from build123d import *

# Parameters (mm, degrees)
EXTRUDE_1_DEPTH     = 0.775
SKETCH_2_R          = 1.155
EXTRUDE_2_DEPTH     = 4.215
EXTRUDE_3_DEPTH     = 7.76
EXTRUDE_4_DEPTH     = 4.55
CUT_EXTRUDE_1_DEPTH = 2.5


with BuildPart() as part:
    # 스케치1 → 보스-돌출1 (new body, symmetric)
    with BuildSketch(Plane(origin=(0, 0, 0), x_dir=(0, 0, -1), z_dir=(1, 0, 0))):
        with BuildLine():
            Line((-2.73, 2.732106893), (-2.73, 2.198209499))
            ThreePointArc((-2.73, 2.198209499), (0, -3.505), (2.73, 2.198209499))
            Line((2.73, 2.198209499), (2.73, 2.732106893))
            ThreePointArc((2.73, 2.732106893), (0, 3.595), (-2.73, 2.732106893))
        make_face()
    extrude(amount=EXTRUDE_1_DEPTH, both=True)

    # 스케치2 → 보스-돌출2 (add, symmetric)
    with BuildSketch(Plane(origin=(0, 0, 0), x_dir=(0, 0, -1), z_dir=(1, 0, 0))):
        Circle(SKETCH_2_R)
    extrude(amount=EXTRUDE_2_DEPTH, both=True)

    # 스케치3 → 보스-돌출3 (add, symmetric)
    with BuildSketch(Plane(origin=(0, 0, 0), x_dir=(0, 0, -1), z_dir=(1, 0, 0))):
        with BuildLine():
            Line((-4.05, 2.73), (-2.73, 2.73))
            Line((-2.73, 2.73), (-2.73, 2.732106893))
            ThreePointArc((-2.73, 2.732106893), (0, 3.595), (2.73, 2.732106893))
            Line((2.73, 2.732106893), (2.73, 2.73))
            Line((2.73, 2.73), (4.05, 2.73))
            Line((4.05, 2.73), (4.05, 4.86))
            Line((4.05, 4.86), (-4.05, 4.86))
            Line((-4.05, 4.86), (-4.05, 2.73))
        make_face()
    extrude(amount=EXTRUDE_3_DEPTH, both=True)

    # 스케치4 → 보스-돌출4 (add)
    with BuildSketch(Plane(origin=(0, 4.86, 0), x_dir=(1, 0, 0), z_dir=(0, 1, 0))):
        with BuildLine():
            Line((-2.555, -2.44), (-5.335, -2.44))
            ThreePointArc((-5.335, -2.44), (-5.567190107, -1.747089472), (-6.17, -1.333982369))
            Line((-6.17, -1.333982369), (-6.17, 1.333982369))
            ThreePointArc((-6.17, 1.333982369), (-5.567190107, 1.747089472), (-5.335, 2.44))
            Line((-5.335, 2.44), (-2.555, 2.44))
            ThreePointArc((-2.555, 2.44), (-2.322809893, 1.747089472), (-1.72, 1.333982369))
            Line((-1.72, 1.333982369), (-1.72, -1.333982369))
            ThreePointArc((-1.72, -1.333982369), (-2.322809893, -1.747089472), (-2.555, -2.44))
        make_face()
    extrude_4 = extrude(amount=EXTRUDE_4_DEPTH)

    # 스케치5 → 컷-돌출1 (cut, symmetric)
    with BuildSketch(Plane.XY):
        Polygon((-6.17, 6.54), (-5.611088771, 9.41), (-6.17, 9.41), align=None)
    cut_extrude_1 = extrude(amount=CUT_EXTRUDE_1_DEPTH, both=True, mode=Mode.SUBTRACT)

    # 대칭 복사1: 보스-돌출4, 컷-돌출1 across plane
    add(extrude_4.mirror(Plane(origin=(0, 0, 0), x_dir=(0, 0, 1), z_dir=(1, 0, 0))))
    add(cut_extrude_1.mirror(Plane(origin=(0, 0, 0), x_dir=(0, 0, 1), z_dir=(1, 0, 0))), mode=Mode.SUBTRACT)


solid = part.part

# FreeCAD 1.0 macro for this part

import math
import FreeCAD as App
import Part
import Sketcher
from FreeCAD import Vector
Q = App.Units.Quantity


def add_polygon(sketch, points):
    """Adds a closed chain of lines whose ends are joined by coincident constraints."""
    first, n = sketch.GeometryCount, len(points)
    for a, b in zip(points, points[1:] + points[:1]):
        sketch.addGeometry(Part.LineSegment(App.Vector(*a, 0), App.Vector(*b, 0)), False)
    for i in range(n):
        sketch.addConstraint(Sketcher.Constraint("Coincident", first + i, 2, first + (i + 1) % n, 1))

doc = App.newDocument("Part")
body = doc.addObject("PartDesign::Body", "Body")

# Sketch on YZ plane
sketch1 = body.newObject("Sketcher::SketchObject", "Sketch")
sketch1.AttachmentSupport = (doc.getObject("YZ_Plane"), [""])
sketch1.MapMode = "FlatFace"
sketch1.addGeometry(Part.LineSegment(Vector(2.732107, 2.73, 0), Vector(2.198209, 2.73, 0)), False)
sketch1.addGeometry(Part.ArcOfCircle(Part.Circle(Vector(0, 0, 0), Vector(0, 0, 1), 3.505), math.radians(51.158811), math.radians(308.841189)), False)
sketch1.addGeometry(Part.LineSegment(Vector(2.198209, -2.73, 0), Vector(2.732107, -2.73, 0)), False)
sketch1.addGeometry(Part.ArcOfCircle(Part.Circle(Vector(-1.155, 0, 0), Vector(0, 0, 1), 4.75), math.radians(-35.081205), math.radians(35.081205)), False)
sketch1.addConstraint(Sketcher.Constraint("Coincident", 0, 2, 1, 1))
sketch1.addConstraint(Sketcher.Constraint("Coincident", 1, 2, 2, 1))
sketch1.addConstraint(Sketcher.Constraint("Coincident", 2, 2, 3, 1))
sketch1.addConstraint(Sketcher.Constraint("Coincident", 3, 2, 0, 1))
sketch1.addConstraint(Sketcher.Constraint("Horizontal", 0))
sketch1.addConstraint(Sketcher.Constraint("Horizontal", 2))
sketch1.addConstraint(Sketcher.Constraint("Coincident", 1, 3, -1, 1))
sketch1.addConstraint(Sketcher.Constraint("Symmetric", 2, 2, 3, 2, -1))
sketch1.addConstraint(Sketcher.Constraint("Radius", 3, 4.75))
sketch1.addConstraint(Sketcher.Constraint("Radius", 1, 3.505))
sketch1.addConstraint(Sketcher.Constraint("DistanceY", -1, 1, 0, 2, 2.73))
sketch1.addConstraint(Sketcher.Constraint("DistanceX", 3, 3, -1, 1, 1.155))
pad1 = body.newObject("PartDesign::Pad", "Pad")
pad1.Profile = sketch1
pad1.Length = 1.55
pad1.Midplane = True

# Sketch on YZ plane
sketch2 = body.newObject("Sketcher::SketchObject", "Sketch001")
sketch2.AttachmentSupport = (doc.getObject("YZ_Plane"), [""])
sketch2.MapMode = "FlatFace"
sketch2.addGeometry(Part.Circle(Vector(0, 0, 0), Vector(0, 0, 1), 1.155), False)
sketch2.addConstraint(Sketcher.Constraint("Coincident", 0, 3, -1, 1))
sketch2.addConstraint(Sketcher.Constraint("Diameter", 0, 2.31))
pad2 = body.newObject("PartDesign::Pad", "Pad001")
pad2.Profile = sketch2
pad2.Length = 8.43
pad2.Midplane = True

# Sketch on YZ plane
sketch3 = body.newObject("Sketcher::SketchObject", "Sketch002")
sketch3.AttachmentSupport = (doc.getObject("YZ_Plane"), [""])
sketch3.MapMode = "FlatFace"
sketch3.addGeometry(Part.LineSegment(Vector(2.73, 4.05, 0), Vector(2.73, 2.73, 0)), False)
sketch3.addGeometry(Part.LineSegment(Vector(2.73, 2.73, 0), Vector(2.732107, 2.73, 0)), False)
sketch3.addGeometry(Part.ArcOfCircle(Part.Circle(Vector(-1.155, 0, 0), Vector(0, 0, 1), 4.75), math.radians(-35.081205), math.radians(35.081205)), False)
sketch3.addGeometry(Part.LineSegment(Vector(2.732107, -2.73, 0), Vector(2.73, -2.73, 0)), False)
sketch3.addGeometry(Part.LineSegment(Vector(2.73, -2.73, 0), Vector(2.73, -4.05, 0)), False)
sketch3.addGeometry(Part.LineSegment(Vector(2.73, -4.05, 0), Vector(4.86, -4.05, 0)), False)
sketch3.addGeometry(Part.LineSegment(Vector(4.86, -4.05, 0), Vector(4.86, 4.05, 0)), False)
sketch3.addGeometry(Part.LineSegment(Vector(4.86, 4.05, 0), Vector(2.73, 4.05, 0)), False)
sketch3.addConstraint(Sketcher.Constraint("Coincident", 0, 2, 1, 1))
sketch3.addConstraint(Sketcher.Constraint("Coincident", 1, 2, 2, 2))
sketch3.addConstraint(Sketcher.Constraint("Coincident", 2, 1, 3, 1))
sketch3.addConstraint(Sketcher.Constraint("Coincident", 3, 2, 4, 1))
sketch3.addConstraint(Sketcher.Constraint("Coincident", 4, 2, 5, 1))
sketch3.addConstraint(Sketcher.Constraint("Coincident", 5, 2, 6, 1))
sketch3.addConstraint(Sketcher.Constraint("Coincident", 6, 2, 7, 1))
sketch3.addConstraint(Sketcher.Constraint("Coincident", 7, 2, 0, 1))
sketch3.addConstraint(Sketcher.Constraint("Vertical", 0))
sketch3.addConstraint(Sketcher.Constraint("Horizontal", 1))
sketch3.addConstraint(Sketcher.Constraint("Horizontal", 3))
sketch3.addConstraint(Sketcher.Constraint("Vertical", 4))
sketch3.addConstraint(Sketcher.Constraint("Horizontal", 5))
sketch3.addConstraint(Sketcher.Constraint("Vertical", 6))
sketch3.addConstraint(Sketcher.Constraint("Horizontal", 7))
sketch3.addConstraint(Sketcher.Constraint("Symmetric", 1, 2, 2, 1, -1))
sketch3.addConstraint(Sketcher.Constraint("Symmetric", 4, 2, 7, 2, -1))
sketch3.addConstraint(Sketcher.Constraint("Radius", 2, 4.75))
sketch3.addConstraint(Sketcher.Constraint("DistanceY", 6, 1, 6, 2, 8.1))
sketch3.addConstraint(Sketcher.Constraint("DistanceX", 5, 1, 5, 2, 2.13))
sketch3.addConstraint(Sketcher.Constraint("DistanceY", 0, 2, 0, 1, 1.32))
sketch3.addConstraint(Sketcher.Constraint("DistanceX", -1, 1, 0, 2, 2.73))
sketch3.addConstraint(Sketcher.Constraint("DistanceX", 2, 3, -1, 1, 1.155))
pad3 = body.newObject("PartDesign::Pad", "Pad002")
pad3.Profile = sketch3
pad3.Length = 15.52
pad3.Midplane = True

# Sketch on XZ plane
sketch4 = body.newObject("Sketcher::SketchObject", "Sketch003")
sketch4.AttachmentSupport = (doc.getObject("XZ_Plane"), [""])
sketch4.MapMode = "FlatFace"
sketch4.AttachmentOffset = App.Placement(Vector(0, 0, -4.86), App.Rotation())
sketch4.addGeometry(Part.LineSegment(Vector(-5.335, 2.44, 0), Vector(-2.555, 2.44, 0)), False)
sketch4.addGeometry(Part.ArcOfCircle(Part.Circle(Vector(-1.405, 2.44, 0), Vector(0, 0, 1), 1.15), math.radians(-180), math.radians(-105.897249)), False)
sketch4.addGeometry(Part.LineSegment(Vector(-1.72, 1.333982, 0), Vector(-1.72, -1.333982, 0)), False)
sketch4.addGeometry(Part.ArcOfCircle(Part.Circle(Vector(-1.405, -2.44, 0), Vector(0, 0, 1), 1.15), math.radians(105.897249), math.radians(180)), False)
sketch4.addGeometry(Part.LineSegment(Vector(-2.555, -2.44, 0), Vector(-5.335, -2.44, 0)), False)
sketch4.addGeometry(Part.ArcOfCircle(Part.Circle(Vector(-6.485, -2.44, 0), Vector(0, 0, 1), 1.15), math.radians(0), math.radians(74.102751)), False)
sketch4.addGeometry(Part.LineSegment(Vector(-6.17, -1.333982, 0), Vector(-6.17, 1.333982, 0)), False)
sketch4.addGeometry(Part.ArcOfCircle(Part.Circle(Vector(-6.485, 2.44, 0), Vector(0, 0, 1), 1.15), math.radians(-74.102751), math.radians(0)), False)
sketch4.addConstraint(Sketcher.Constraint("Coincident", 0, 2, 1, 1))
sketch4.addConstraint(Sketcher.Constraint("Coincident", 1, 2, 2, 1))
sketch4.addConstraint(Sketcher.Constraint("Coincident", 2, 2, 3, 1))
sketch4.addConstraint(Sketcher.Constraint("Coincident", 3, 2, 4, 1))
sketch4.addConstraint(Sketcher.Constraint("Coincident", 4, 2, 5, 1))
sketch4.addConstraint(Sketcher.Constraint("Coincident", 5, 2, 6, 1))
sketch4.addConstraint(Sketcher.Constraint("Coincident", 6, 2, 7, 1))
sketch4.addConstraint(Sketcher.Constraint("Coincident", 7, 2, 0, 1))
sketch4.addConstraint(Sketcher.Constraint("Horizontal", 0))
sketch4.addConstraint(Sketcher.Constraint("Vertical", 2))
sketch4.addConstraint(Sketcher.Constraint("Horizontal", 4))
sketch4.addConstraint(Sketcher.Constraint("Vertical", 6))
sketch4.addConstraint(Sketcher.Constraint("Equal", 1, 3))
sketch4.addConstraint(Sketcher.Constraint("Equal", 3, 5))
sketch4.addConstraint(Sketcher.Constraint("Equal", 5, 7))
sketch4.addConstraint(Sketcher.Constraint("Symmetric", 1, 3, 3, 3, -1))
sketch4.addConstraint(Sketcher.Constraint("Symmetric", 5, 3, 7, 3, -1))
sketch4.addConstraint(Sketcher.Constraint("Horizontal", 3, 3, 5, 3))
sketch4.addConstraint(Sketcher.Constraint("Horizontal", 7, 3, 0, 2))
sketch4.addConstraint(Sketcher.Constraint("Horizontal", 5, 3, 3, 2))
sketch4.addConstraint(Sketcher.Constraint("Horizontal", 2, 2, 5, 2))
sketch4.addConstraint(Sketcher.Constraint("Radius", 1, 1.15))
sketch4.addConstraint(Sketcher.Constraint("DistanceX", 0, 1, 0, 2, 2.78))
sketch4.addConstraint(Sketcher.Constraint("DistanceY", -1, 1, 1, 3, 2.44))
sketch4.addConstraint(Sketcher.Constraint("DistanceX", 1, 2, -1, 1, 1.72))
sketch4.addConstraint(Sketcher.Constraint("DistanceX", 5, 2, -1, 1, 6.17))
pad4 = body.newObject("PartDesign::Pad", "Pad003")
pad4.Profile = sketch4
pad4.Length = 4.55
pad4.Reversed = True

# Sketch on XY plane
sketch5 = body.newObject("Sketcher::SketchObject", "Sketch004")
sketch5.AttachmentSupport = (doc.getObject("XY_Plane"), [""])
sketch5.MapMode = "FlatFace"
add_polygon(sketch5, [(-6.17, 6.54), (-5.611089, 9.41), (-6.17, 9.41)])  # lines 0-2
sketch5.addConstraint(Sketcher.Constraint("Horizontal", 1))
sketch5.addConstraint(Sketcher.Constraint("Vertical", 2))
sketch5.addConstraint(Sketcher.Constraint("DistanceY", 2, 2, 2, 1, 2.87))
sketch5.addConstraint(Sketcher.Constraint("Angle", 0, Q("78.98 deg")))
sketch5.addConstraint(Sketcher.Constraint("DistanceY", -1, 1, 0, 2, 9.41))
sketch5.addConstraint(Sketcher.Constraint("DistanceX", 1, 2, -1, 1, 6.17))
pocket1 = body.newObject("PartDesign::Pocket", "Pocket")
pocket1.Profile = sketch5
pocket1.Length = 5
pocket1.Midplane = True
doc.recompute()

mirrored = body.newObject("PartDesign::Mirrored", "Mirrored")
mirrored.Originals = [pad4, pocket1]
mirrored.MirrorPlane = (doc.getObject("YZ_Plane"), [""])
body.Tip = mirrored

doc.recompute()
